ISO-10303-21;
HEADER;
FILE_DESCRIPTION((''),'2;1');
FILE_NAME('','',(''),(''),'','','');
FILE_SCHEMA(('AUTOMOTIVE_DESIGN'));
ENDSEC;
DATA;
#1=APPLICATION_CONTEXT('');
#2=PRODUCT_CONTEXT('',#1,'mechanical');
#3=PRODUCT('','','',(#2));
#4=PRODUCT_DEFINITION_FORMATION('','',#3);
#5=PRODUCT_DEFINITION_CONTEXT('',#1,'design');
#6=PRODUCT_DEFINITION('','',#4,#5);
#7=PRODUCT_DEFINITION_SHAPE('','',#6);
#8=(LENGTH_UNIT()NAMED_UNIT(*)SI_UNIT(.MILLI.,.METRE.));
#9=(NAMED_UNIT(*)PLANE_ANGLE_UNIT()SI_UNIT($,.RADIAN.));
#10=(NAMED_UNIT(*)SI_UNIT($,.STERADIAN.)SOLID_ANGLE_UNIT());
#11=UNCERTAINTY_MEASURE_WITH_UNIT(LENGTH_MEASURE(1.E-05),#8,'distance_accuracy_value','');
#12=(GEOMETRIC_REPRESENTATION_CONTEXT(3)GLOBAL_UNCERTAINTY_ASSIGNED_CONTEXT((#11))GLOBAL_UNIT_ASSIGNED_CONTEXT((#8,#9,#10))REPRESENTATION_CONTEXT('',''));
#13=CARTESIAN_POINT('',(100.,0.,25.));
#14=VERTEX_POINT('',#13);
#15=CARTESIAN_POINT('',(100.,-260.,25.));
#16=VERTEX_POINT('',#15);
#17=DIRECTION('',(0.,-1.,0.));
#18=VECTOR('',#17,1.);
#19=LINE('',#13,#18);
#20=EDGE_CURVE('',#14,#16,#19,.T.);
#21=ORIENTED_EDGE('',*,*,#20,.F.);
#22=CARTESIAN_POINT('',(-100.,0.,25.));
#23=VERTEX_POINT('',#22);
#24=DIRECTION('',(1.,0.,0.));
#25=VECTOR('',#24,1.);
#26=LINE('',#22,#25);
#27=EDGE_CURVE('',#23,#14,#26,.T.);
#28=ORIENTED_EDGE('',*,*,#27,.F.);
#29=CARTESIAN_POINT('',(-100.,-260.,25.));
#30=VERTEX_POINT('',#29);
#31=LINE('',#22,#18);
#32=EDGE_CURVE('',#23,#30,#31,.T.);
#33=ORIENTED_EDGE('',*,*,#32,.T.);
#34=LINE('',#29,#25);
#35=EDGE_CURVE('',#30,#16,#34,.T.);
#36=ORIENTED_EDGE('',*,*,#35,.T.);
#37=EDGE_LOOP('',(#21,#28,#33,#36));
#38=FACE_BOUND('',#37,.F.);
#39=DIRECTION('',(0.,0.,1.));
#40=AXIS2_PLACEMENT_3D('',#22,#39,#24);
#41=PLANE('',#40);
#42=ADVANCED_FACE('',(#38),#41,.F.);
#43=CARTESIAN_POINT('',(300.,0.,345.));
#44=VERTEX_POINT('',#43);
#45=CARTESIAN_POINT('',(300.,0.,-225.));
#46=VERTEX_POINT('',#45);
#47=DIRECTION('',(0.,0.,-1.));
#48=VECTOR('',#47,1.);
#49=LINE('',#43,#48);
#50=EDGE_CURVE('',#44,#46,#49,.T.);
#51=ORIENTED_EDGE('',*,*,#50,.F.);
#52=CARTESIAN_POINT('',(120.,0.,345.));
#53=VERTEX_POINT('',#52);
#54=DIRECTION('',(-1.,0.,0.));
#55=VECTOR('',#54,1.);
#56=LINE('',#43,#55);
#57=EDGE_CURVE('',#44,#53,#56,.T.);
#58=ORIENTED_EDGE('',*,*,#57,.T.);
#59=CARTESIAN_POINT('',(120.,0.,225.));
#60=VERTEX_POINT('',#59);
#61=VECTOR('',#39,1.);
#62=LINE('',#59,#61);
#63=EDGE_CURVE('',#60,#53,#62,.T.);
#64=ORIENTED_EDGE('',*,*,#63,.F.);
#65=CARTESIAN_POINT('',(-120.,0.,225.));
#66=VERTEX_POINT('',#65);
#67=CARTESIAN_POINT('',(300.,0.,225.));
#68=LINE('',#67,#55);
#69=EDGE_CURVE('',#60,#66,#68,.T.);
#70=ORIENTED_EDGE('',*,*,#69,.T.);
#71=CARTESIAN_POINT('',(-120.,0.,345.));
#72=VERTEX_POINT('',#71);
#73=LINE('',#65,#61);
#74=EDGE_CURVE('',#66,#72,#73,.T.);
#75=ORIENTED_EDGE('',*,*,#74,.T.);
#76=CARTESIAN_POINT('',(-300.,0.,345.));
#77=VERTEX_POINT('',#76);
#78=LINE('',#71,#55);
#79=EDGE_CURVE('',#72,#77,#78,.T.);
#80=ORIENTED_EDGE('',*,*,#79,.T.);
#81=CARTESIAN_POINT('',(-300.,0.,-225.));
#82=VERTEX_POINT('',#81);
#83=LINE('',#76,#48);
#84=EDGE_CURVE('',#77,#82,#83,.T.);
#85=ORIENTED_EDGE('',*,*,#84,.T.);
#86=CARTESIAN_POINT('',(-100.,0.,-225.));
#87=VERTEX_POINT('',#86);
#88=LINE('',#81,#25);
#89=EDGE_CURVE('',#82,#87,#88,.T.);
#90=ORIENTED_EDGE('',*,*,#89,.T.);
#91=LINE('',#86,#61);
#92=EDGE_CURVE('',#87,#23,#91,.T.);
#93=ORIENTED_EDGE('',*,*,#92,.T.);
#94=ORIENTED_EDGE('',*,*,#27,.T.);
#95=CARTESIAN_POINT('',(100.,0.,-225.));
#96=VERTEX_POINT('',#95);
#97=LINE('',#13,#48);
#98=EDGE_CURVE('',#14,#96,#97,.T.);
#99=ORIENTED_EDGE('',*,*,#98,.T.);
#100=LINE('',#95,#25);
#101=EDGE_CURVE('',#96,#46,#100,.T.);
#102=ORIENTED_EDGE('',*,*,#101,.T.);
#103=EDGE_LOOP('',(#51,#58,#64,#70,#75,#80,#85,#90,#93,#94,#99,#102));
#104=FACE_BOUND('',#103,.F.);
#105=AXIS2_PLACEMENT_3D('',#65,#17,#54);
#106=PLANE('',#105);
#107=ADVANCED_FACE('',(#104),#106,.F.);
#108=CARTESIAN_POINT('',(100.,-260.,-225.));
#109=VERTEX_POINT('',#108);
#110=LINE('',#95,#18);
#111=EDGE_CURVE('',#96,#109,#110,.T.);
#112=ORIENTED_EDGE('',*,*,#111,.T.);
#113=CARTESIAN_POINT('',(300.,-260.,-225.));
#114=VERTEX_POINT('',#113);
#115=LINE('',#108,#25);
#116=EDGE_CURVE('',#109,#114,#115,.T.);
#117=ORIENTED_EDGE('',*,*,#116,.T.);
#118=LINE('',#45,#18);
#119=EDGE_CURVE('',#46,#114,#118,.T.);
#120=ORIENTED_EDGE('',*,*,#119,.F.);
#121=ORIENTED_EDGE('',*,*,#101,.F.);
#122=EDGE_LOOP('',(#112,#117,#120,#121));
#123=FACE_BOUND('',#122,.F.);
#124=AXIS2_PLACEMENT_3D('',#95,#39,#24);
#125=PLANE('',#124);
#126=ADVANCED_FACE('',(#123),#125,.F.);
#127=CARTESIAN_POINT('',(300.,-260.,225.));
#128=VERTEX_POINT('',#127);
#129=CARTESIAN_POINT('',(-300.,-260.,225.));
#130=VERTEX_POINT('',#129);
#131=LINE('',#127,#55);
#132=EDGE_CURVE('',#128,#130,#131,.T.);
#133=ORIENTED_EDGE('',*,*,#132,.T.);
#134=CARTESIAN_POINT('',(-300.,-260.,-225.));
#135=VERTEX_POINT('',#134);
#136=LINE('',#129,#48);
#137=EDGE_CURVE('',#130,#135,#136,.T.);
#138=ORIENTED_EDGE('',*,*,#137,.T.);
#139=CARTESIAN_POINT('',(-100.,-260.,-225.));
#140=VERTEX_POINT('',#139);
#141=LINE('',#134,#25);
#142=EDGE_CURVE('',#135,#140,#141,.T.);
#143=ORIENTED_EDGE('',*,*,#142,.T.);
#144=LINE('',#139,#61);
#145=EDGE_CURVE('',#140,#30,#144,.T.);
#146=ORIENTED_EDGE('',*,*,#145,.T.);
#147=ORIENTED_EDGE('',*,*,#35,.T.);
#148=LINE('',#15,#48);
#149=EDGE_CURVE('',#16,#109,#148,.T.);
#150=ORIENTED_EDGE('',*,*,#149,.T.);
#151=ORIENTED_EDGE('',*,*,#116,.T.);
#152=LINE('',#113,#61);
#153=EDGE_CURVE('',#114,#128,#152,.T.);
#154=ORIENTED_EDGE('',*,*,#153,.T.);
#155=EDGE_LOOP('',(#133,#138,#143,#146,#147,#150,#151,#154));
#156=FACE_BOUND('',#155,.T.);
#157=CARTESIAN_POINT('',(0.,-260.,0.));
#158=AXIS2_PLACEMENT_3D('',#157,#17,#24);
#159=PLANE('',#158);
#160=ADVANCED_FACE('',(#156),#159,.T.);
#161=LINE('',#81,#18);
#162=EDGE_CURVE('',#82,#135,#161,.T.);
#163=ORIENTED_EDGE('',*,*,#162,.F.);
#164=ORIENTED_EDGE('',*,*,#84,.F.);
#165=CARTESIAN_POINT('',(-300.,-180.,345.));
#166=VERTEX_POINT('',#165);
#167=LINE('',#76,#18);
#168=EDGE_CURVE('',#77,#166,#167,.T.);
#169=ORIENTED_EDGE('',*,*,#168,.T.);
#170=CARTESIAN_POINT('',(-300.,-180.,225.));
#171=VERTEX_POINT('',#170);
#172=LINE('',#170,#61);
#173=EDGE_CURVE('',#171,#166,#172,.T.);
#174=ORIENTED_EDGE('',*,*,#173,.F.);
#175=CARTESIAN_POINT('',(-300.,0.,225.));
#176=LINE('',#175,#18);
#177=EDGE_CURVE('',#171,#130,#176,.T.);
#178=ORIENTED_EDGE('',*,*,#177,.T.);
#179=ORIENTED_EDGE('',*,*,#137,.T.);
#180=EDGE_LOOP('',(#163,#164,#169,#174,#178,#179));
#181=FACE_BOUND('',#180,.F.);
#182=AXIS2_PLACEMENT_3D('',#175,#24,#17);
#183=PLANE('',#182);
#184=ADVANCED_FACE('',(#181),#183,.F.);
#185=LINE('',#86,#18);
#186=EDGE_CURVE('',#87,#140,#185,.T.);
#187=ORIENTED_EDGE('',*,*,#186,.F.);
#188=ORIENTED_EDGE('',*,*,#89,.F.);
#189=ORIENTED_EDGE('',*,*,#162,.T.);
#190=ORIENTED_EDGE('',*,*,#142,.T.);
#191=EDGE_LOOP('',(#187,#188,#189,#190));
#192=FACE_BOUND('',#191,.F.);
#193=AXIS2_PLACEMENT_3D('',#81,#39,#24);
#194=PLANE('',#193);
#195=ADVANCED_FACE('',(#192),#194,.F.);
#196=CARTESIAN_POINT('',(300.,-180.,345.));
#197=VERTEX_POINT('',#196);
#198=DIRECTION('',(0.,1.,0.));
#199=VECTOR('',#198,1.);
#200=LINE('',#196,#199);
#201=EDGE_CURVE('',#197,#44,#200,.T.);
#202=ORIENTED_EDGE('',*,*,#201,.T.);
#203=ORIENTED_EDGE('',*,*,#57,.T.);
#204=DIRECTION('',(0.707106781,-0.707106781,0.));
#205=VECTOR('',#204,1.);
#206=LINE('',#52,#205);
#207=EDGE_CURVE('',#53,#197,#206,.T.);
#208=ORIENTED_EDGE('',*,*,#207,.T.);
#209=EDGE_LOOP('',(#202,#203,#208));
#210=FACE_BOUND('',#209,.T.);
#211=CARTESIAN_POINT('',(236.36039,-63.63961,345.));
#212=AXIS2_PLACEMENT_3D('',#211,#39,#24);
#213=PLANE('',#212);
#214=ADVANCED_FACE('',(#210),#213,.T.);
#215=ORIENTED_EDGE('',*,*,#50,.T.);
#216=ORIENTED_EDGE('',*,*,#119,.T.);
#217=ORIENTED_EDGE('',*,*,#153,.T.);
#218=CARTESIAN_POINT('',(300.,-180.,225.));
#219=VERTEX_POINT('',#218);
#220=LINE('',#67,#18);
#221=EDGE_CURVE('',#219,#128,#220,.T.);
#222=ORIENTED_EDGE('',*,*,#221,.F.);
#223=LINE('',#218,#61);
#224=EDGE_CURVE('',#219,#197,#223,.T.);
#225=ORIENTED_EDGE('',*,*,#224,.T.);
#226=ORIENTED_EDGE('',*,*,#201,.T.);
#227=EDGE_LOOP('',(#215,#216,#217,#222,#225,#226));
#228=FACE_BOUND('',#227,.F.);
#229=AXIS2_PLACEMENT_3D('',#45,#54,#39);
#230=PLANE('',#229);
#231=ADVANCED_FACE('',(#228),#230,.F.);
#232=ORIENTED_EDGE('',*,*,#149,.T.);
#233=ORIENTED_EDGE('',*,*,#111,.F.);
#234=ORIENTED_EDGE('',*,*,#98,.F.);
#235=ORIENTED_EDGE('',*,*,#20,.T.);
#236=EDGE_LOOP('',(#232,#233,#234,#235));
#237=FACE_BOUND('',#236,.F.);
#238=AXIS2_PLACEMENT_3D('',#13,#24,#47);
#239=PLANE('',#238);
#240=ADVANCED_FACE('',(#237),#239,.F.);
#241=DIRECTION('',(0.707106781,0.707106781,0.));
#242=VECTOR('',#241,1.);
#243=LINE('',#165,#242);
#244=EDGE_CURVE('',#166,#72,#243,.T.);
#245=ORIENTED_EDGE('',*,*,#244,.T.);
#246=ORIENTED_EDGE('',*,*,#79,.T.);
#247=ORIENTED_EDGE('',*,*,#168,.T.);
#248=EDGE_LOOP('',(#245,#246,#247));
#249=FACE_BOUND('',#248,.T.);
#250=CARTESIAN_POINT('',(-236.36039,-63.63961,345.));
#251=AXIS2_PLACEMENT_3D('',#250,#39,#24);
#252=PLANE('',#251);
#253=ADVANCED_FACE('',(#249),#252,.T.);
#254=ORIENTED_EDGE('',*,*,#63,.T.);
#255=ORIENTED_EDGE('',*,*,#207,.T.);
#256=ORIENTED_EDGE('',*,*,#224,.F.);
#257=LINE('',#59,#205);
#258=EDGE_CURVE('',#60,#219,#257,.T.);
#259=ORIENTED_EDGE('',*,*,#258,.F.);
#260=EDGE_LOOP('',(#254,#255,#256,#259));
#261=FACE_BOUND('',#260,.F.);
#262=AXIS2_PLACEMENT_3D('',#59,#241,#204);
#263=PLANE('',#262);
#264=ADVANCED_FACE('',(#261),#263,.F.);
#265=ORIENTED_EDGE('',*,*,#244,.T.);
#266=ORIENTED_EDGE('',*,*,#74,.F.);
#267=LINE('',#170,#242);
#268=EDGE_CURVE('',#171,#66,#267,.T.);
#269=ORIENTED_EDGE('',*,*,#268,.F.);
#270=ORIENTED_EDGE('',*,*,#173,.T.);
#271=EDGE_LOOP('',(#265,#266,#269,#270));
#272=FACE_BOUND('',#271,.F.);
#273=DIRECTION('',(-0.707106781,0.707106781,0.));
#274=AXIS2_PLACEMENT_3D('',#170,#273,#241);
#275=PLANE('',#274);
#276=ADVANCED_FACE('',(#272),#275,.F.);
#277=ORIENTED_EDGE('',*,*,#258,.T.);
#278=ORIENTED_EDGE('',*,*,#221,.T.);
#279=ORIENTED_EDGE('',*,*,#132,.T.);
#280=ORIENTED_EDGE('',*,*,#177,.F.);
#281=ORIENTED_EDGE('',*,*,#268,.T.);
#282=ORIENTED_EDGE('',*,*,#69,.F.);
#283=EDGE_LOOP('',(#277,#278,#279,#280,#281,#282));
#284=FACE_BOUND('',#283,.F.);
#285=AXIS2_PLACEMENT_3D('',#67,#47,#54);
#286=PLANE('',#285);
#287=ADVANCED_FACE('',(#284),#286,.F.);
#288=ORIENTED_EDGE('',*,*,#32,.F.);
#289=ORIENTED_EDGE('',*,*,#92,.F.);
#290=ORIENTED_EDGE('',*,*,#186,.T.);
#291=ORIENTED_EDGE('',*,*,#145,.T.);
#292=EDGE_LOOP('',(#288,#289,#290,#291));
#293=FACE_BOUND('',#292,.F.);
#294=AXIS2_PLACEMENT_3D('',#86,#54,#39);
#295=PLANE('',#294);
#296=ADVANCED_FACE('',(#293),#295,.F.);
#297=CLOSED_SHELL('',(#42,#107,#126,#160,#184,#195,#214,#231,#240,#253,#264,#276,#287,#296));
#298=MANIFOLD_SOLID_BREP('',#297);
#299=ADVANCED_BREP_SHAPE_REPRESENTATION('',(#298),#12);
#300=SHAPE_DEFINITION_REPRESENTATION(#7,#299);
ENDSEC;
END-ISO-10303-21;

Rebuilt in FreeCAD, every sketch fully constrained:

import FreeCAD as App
import Part
import Sketcher
from FreeCAD import Vector
Q = App.Units.Quantity

doc = App.newDocument("Part")
params = doc.addObject("Spreadsheet::Sheet", "Params")
for row, (alias, value) in enumerate([
    ("sketch1_width", "600 mm"),
    ("sketch1_height", "450 mm"),
    ("sketch1_height2", "250 mm"),
    ("pad1_length", "260 mm"),
    ("sketch2_width", "180 mm"),
    ("pad2_length", "120 mm"),
], start=1):
    params.set(f"A{row}", alias)
    params.set(f"B{row}", "=" + value)
    params.setAlias(f"B{row}", alias)

body = doc.addObject("PartDesign::Body", "Body")

sketch1 = doc.addObject("Sketcher::SketchObject", "Sketch")
body.addObject(sketch1)
sketch1.AttachmentSupport = (doc.XZ_Plane, [""])
sketch1.MapMode = "FlatFace"
sketch1.addGeometry(Part.LineSegment(Vector(300, 225, 0), Vector(-300, 225, 0)), False)
sketch1.addGeometry(Part.LineSegment(Vector(-300, 225, 0), Vector(-300, -225, 0)), False)
sketch1.addGeometry(Part.LineSegment(Vector(-300, -225, 0), Vector(-100, -225, 0)), False)
sketch1.addGeometry(Part.LineSegment(Vector(-100, -225, 0), Vector(-100, 25, 0)), False)
sketch1.addGeometry(Part.LineSegment(Vector(-100, 25, 0), Vector(100, 25, 0)), False)
sketch1.addGeometry(Part.LineSegment(Vector(100, 25, 0), Vector(100, -225, 0)), False)
sketch1.addGeometry(Part.LineSegment(Vector(100, -225, 0), Vector(300, -225, 0)), False)
sketch1.addGeometry(Part.LineSegment(Vector(300, -225, 0), Vector(300, 225, 0)), False)
sketch1.addConstraint(Sketcher.Constraint("Coincident", 0, 2, 1, 1))
sketch1.addConstraint(Sketcher.Constraint("Coincident", 1, 2, 2, 1))
sketch1.addConstraint(Sketcher.Constraint("Coincident", 2, 2, 3, 1))
sketch1.addConstraint(Sketcher.Constraint("Coincident", 3, 2, 4, 1))
sketch1.addConstraint(Sketcher.Constraint("Coincident", 4, 2, 5, 1))
sketch1.addConstraint(Sketcher.Constraint("Coincident", 5, 2, 6, 1))
sketch1.addConstraint(Sketcher.Constraint("Coincident", 6, 2, 7, 1))
sketch1.addConstraint(Sketcher.Constraint("Coincident", 7, 2, 0, 1))
sketch1.addConstraint(Sketcher.Constraint("Horizontal", 0))
sketch1.addConstraint(Sketcher.Constraint("Vertical", 1))
sketch1.addConstraint(Sketcher.Constraint("Horizontal", 2))
sketch1.addConstraint(Sketcher.Constraint("Vertical", 3))
sketch1.addConstraint(Sketcher.Constraint("Horizontal", 4))
sketch1.addConstraint(Sketcher.Constraint("Vertical", 5))
sketch1.addConstraint(Sketcher.Constraint("Horizontal", 6))
sketch1.addConstraint(Sketcher.Constraint("Vertical", 7))
sketch1.addConstraint(Sketcher.Constraint("Symmetric", 0, 2, 6, 2, -1, 1))
sketch1.addConstraint(Sketcher.Constraint("Symmetric", 2, 2, 5, 2, -2))
sketch1.addConstraint(Sketcher.Constraint("Equal", 2, 4))
sketch1.addConstraint(Sketcher.Constraint("DistanceX", 0, 2, 0, 1, Q("600 mm")))
sketch1.addConstraint(Sketcher.Constraint("DistanceY", 1, 2, 1, 1, Q("450 mm")))
sketch1.addConstraint(Sketcher.Constraint("DistanceY", 3, 1, 3, 2, Q("250 mm")))
sketch1.setExpression("Constraints[19]", "Params.sketch1_width")
sketch1.setExpression("Constraints[20]", "Params.sketch1_height")
sketch1.setExpression("Constraints[21]", "Params.sketch1_height2")
pad1 = doc.addObject("PartDesign::Pad", "Pad")
body.addObject(pad1)
pad1.Profile = sketch1
pad1.setExpression("Length", "Params.pad1_length")

sketch2 = doc.addObject("Sketcher::SketchObject", "Sketch001")
body.addObject(sketch2)
sketch2.AttachmentSupport = (doc.XY_Plane, [""])
sketch2.MapMode = "FlatFace"
sketch2.AttachmentOffset = App.Placement(Vector(0, 0, 225), App.Rotation())
sketch2.addGeometry(Part.LineSegment(Vector(-300, -180, 0), Vector(-120, 0, 0)), False)
sketch2.addGeometry(Part.LineSegment(Vector(-120, 0, 0), Vector(-300, 0, 0)), False)
sketch2.addGeometry(Part.LineSegment(Vector(-300, 0, 0), Vector(-300, -180, 0)), False)
sketch2.addGeometry(Part.LineSegment(Vector(300, 0, 0), Vector(120, 0, 0)), False)
sketch2.addGeometry(Part.LineSegment(Vector(120, 0, 0), Vector(300, -180, 0)), False)
sketch2.addGeometry(Part.LineSegment(Vector(300, -180, 0), Vector(300, 0, 0)), False)
sketch2.addConstraint(Sketcher.Constraint("Coincident", 0, 2, 1, 1))
sketch2.addConstraint(Sketcher.Constraint("Coincident", 1, 2, 2, 1))
sketch2.addConstraint(Sketcher.Constraint("Coincident", 2, 2, 0, 1))
sketch2.addConstraint(Sketcher.Constraint("Coincident", 3, 2, 4, 1))
sketch2.addConstraint(Sketcher.Constraint("Coincident", 4, 2, 5, 1))
sketch2.addConstraint(Sketcher.Constraint("Coincident", 5, 2, 3, 1))
sketch2.addConstraint(Sketcher.Constraint("Horizontal", 1))
sketch2.addConstraint(Sketcher.Constraint("Vertical", 2))
sketch2.addConstraint(Sketcher.Constraint("Horizontal", 3))
sketch2.addConstraint(Sketcher.Constraint("Vertical", 5))
sketch2.addConstraint(Sketcher.Constraint("Symmetric", 0, 2, 3, 2, -1, 1))
sketch2.addConstraint(Sketcher.Constraint("Symmetric", 2, 2, 4, 2, -2))
sketch2.addConstraint(Sketcher.Constraint("PointOnObject", 0, 2, -1))
sketch2.addConstraint(Sketcher.Constraint("Perpendicular", 0, 4))
sketch2.addConstraint(Sketcher.Constraint("DistanceX", 1, 2, 1, 1, Q("180 mm")))
sketch2.addConstraint(Sketcher.Constraint("DistanceX", 0, 2, -1, 1, Q("120 mm")))
sketch2.setExpression("Constraints[14]", "Params.sketch2_width")
pad2 = doc.addObject("PartDesign::Pad", "Pad001")
body.addObject(pad2)
pad2.Profile = sketch2
pad2.setExpression("Length", "Params.pad2_length")

doc.recompute()
